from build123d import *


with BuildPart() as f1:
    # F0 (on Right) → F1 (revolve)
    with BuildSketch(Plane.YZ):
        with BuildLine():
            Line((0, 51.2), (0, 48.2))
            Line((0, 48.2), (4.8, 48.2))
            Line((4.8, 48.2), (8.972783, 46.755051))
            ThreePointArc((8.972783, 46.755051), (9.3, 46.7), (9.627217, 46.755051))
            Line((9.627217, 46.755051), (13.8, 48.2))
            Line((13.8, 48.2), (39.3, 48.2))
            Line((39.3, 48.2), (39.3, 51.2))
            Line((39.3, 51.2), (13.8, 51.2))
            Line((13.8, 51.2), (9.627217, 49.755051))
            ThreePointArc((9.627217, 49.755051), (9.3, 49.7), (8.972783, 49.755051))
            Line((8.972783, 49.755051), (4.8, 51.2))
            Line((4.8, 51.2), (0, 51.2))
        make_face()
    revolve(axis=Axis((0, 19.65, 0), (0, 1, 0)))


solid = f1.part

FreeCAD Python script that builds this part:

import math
import FreeCAD as App
import Part
import Sketcher
Q = App.Units.Quantity

doc = App.newDocument("Part")
body = doc.addObject("PartDesign::Body", "Body")

sketch1 = body.newObject("Sketcher::SketchObject", "Sketch")
sketch1.AttachmentSupport = (doc.getObject("YZ_Plane"), [""])
sketch1.MapMode = "FlatFace"
sketch1.addGeometry([
    Part.LineSegment(App.Vector(0, 51.2, 0), App.Vector(0, 48.2, 0)),
    Part.LineSegment(App.Vector(0, 48.2, 0), App.Vector(4.8, 48.2, 0)),
    Part.LineSegment(App.Vector(4.8, 48.2, 0), App.Vector(9, 46.8, 0)),
    Part.ArcOfCircle(Part.Circle(App.Vector(9.3, 47.7, 0), App.Vector(0, 0, 1), 1), math.radians(-109), math.radians(-71)),
    Part.LineSegment(App.Vector(9.6, 46.8, 0), App.Vector(13.8, 48.2, 0)),
    Part.LineSegment(App.Vector(13.8, 48.2, 0), App.Vector(39.3, 48.2, 0)),
    Part.LineSegment(App.Vector(39.3, 48.2, 0), App.Vector(39.3, 51.2, 0)),
    Part.LineSegment(App.Vector(39.3, 51.2, 0), App.Vector(13.8, 51.2, 0)),
    Part.LineSegment(App.Vector(13.8, 51.2, 0), App.Vector(9.6, 49.8, 0)),
    Part.ArcOfCircle(Part.Circle(App.Vector(9.3, 50.7, 0), App.Vector(0, 0, 1), 1), math.radians(-109), math.radians(-71)),
    Part.LineSegment(App.Vector(9, 49.8, 0), App.Vector(4.8, 51.2, 0)),
    Part.LineSegment(App.Vector(4.8, 51.2, 0), App.Vector(0, 51.2, 0)),
], False)
sketch1.addConstraint([
    Sketcher.Constraint("Coincident", 0, 2, 1, 1),
    Sketcher.Constraint("Coincident", 1, 2, 2, 1),
    Sketcher.Constraint("Tangent", 2, 2, 3, 1),
    Sketcher.Constraint("Tangent", 3, 2, 4, 1),
    Sketcher.Constraint("Coincident", 4, 2, 5, 1),
    Sketcher.Constraint("Coincident", 5, 2, 6, 1),
    Sketcher.Constraint("Coincident", 6, 2, 7, 1),
    Sketcher.Constraint("Coincident", 7, 2, 8, 1),
    Sketcher.Constraint("Tangent", 8, 2, 9, 2),
    Sketcher.Constraint("Tangent", 9, 1, 10, 1),
    Sketcher.Constraint("Coincident", 10, 2, 11, 1),
    Sketcher.Constraint("Coincident", 11, 2, 0, 1),
    Sketcher.Constraint("Vertical", 0),
    Sketcher.Constraint("Horizontal", 1),
    Sketcher.Constraint("Horizontal", 5),
    Sketcher.Constraint("Vertical", 6),
    Sketcher.Constraint("Horizontal", 7),
    Sketcher.Constraint("Horizontal", 11),
    Sketcher.Constraint("Equal", 3, 9),
    Sketcher.Constraint("PointOnObject", 0, 2, -2),
    Sketcher.Constraint("Parallel", 4, 8),
    Sketcher.Constraint("Parallel", 2, 10),
    Sketcher.Constraint("Horizontal", 2, 2, 3, 2),
    Sketcher.Constraint("Horizontal", 1, 2, 4, 2),
    Sketcher.Constraint("Horizontal", 7, 2, 10, 2),
    Sketcher.Constraint("Vertical", 3, 3, 9, 3),
    Sketcher.Constraint("Vertical", 4, 2, 7, 2),
    Sketcher.Constraint("DistanceY", 0, 2, 0, 1, Q("3 mm")),
    Sketcher.Constraint("DistanceX", 1, 1, 1, 2, Q("4.8 mm")),
    Sketcher.Constraint("DistanceX", 5, 1, 5, 2, Q("25.5 mm")),
    Sketcher.Constraint("DistanceX", 1, 2, 4, 2, Q("9 mm")),
    Sketcher.Constraint("DistanceY", -1, 1, 0, 2, Q("48.2 mm")),
    Sketcher.Constraint("Radius", 3, Q("0.999996 mm")),
    Sketcher.Constraint("Distance", 2, Q("4.41588 mm")),
])
revolution = body.newObject("PartDesign::Revolution", "Revolution")
revolution.Profile = sketch1
revolution.ReferenceAxis = (sketch1, ["H_Axis"])
revolution.Angle = 360

doc.recompute()
